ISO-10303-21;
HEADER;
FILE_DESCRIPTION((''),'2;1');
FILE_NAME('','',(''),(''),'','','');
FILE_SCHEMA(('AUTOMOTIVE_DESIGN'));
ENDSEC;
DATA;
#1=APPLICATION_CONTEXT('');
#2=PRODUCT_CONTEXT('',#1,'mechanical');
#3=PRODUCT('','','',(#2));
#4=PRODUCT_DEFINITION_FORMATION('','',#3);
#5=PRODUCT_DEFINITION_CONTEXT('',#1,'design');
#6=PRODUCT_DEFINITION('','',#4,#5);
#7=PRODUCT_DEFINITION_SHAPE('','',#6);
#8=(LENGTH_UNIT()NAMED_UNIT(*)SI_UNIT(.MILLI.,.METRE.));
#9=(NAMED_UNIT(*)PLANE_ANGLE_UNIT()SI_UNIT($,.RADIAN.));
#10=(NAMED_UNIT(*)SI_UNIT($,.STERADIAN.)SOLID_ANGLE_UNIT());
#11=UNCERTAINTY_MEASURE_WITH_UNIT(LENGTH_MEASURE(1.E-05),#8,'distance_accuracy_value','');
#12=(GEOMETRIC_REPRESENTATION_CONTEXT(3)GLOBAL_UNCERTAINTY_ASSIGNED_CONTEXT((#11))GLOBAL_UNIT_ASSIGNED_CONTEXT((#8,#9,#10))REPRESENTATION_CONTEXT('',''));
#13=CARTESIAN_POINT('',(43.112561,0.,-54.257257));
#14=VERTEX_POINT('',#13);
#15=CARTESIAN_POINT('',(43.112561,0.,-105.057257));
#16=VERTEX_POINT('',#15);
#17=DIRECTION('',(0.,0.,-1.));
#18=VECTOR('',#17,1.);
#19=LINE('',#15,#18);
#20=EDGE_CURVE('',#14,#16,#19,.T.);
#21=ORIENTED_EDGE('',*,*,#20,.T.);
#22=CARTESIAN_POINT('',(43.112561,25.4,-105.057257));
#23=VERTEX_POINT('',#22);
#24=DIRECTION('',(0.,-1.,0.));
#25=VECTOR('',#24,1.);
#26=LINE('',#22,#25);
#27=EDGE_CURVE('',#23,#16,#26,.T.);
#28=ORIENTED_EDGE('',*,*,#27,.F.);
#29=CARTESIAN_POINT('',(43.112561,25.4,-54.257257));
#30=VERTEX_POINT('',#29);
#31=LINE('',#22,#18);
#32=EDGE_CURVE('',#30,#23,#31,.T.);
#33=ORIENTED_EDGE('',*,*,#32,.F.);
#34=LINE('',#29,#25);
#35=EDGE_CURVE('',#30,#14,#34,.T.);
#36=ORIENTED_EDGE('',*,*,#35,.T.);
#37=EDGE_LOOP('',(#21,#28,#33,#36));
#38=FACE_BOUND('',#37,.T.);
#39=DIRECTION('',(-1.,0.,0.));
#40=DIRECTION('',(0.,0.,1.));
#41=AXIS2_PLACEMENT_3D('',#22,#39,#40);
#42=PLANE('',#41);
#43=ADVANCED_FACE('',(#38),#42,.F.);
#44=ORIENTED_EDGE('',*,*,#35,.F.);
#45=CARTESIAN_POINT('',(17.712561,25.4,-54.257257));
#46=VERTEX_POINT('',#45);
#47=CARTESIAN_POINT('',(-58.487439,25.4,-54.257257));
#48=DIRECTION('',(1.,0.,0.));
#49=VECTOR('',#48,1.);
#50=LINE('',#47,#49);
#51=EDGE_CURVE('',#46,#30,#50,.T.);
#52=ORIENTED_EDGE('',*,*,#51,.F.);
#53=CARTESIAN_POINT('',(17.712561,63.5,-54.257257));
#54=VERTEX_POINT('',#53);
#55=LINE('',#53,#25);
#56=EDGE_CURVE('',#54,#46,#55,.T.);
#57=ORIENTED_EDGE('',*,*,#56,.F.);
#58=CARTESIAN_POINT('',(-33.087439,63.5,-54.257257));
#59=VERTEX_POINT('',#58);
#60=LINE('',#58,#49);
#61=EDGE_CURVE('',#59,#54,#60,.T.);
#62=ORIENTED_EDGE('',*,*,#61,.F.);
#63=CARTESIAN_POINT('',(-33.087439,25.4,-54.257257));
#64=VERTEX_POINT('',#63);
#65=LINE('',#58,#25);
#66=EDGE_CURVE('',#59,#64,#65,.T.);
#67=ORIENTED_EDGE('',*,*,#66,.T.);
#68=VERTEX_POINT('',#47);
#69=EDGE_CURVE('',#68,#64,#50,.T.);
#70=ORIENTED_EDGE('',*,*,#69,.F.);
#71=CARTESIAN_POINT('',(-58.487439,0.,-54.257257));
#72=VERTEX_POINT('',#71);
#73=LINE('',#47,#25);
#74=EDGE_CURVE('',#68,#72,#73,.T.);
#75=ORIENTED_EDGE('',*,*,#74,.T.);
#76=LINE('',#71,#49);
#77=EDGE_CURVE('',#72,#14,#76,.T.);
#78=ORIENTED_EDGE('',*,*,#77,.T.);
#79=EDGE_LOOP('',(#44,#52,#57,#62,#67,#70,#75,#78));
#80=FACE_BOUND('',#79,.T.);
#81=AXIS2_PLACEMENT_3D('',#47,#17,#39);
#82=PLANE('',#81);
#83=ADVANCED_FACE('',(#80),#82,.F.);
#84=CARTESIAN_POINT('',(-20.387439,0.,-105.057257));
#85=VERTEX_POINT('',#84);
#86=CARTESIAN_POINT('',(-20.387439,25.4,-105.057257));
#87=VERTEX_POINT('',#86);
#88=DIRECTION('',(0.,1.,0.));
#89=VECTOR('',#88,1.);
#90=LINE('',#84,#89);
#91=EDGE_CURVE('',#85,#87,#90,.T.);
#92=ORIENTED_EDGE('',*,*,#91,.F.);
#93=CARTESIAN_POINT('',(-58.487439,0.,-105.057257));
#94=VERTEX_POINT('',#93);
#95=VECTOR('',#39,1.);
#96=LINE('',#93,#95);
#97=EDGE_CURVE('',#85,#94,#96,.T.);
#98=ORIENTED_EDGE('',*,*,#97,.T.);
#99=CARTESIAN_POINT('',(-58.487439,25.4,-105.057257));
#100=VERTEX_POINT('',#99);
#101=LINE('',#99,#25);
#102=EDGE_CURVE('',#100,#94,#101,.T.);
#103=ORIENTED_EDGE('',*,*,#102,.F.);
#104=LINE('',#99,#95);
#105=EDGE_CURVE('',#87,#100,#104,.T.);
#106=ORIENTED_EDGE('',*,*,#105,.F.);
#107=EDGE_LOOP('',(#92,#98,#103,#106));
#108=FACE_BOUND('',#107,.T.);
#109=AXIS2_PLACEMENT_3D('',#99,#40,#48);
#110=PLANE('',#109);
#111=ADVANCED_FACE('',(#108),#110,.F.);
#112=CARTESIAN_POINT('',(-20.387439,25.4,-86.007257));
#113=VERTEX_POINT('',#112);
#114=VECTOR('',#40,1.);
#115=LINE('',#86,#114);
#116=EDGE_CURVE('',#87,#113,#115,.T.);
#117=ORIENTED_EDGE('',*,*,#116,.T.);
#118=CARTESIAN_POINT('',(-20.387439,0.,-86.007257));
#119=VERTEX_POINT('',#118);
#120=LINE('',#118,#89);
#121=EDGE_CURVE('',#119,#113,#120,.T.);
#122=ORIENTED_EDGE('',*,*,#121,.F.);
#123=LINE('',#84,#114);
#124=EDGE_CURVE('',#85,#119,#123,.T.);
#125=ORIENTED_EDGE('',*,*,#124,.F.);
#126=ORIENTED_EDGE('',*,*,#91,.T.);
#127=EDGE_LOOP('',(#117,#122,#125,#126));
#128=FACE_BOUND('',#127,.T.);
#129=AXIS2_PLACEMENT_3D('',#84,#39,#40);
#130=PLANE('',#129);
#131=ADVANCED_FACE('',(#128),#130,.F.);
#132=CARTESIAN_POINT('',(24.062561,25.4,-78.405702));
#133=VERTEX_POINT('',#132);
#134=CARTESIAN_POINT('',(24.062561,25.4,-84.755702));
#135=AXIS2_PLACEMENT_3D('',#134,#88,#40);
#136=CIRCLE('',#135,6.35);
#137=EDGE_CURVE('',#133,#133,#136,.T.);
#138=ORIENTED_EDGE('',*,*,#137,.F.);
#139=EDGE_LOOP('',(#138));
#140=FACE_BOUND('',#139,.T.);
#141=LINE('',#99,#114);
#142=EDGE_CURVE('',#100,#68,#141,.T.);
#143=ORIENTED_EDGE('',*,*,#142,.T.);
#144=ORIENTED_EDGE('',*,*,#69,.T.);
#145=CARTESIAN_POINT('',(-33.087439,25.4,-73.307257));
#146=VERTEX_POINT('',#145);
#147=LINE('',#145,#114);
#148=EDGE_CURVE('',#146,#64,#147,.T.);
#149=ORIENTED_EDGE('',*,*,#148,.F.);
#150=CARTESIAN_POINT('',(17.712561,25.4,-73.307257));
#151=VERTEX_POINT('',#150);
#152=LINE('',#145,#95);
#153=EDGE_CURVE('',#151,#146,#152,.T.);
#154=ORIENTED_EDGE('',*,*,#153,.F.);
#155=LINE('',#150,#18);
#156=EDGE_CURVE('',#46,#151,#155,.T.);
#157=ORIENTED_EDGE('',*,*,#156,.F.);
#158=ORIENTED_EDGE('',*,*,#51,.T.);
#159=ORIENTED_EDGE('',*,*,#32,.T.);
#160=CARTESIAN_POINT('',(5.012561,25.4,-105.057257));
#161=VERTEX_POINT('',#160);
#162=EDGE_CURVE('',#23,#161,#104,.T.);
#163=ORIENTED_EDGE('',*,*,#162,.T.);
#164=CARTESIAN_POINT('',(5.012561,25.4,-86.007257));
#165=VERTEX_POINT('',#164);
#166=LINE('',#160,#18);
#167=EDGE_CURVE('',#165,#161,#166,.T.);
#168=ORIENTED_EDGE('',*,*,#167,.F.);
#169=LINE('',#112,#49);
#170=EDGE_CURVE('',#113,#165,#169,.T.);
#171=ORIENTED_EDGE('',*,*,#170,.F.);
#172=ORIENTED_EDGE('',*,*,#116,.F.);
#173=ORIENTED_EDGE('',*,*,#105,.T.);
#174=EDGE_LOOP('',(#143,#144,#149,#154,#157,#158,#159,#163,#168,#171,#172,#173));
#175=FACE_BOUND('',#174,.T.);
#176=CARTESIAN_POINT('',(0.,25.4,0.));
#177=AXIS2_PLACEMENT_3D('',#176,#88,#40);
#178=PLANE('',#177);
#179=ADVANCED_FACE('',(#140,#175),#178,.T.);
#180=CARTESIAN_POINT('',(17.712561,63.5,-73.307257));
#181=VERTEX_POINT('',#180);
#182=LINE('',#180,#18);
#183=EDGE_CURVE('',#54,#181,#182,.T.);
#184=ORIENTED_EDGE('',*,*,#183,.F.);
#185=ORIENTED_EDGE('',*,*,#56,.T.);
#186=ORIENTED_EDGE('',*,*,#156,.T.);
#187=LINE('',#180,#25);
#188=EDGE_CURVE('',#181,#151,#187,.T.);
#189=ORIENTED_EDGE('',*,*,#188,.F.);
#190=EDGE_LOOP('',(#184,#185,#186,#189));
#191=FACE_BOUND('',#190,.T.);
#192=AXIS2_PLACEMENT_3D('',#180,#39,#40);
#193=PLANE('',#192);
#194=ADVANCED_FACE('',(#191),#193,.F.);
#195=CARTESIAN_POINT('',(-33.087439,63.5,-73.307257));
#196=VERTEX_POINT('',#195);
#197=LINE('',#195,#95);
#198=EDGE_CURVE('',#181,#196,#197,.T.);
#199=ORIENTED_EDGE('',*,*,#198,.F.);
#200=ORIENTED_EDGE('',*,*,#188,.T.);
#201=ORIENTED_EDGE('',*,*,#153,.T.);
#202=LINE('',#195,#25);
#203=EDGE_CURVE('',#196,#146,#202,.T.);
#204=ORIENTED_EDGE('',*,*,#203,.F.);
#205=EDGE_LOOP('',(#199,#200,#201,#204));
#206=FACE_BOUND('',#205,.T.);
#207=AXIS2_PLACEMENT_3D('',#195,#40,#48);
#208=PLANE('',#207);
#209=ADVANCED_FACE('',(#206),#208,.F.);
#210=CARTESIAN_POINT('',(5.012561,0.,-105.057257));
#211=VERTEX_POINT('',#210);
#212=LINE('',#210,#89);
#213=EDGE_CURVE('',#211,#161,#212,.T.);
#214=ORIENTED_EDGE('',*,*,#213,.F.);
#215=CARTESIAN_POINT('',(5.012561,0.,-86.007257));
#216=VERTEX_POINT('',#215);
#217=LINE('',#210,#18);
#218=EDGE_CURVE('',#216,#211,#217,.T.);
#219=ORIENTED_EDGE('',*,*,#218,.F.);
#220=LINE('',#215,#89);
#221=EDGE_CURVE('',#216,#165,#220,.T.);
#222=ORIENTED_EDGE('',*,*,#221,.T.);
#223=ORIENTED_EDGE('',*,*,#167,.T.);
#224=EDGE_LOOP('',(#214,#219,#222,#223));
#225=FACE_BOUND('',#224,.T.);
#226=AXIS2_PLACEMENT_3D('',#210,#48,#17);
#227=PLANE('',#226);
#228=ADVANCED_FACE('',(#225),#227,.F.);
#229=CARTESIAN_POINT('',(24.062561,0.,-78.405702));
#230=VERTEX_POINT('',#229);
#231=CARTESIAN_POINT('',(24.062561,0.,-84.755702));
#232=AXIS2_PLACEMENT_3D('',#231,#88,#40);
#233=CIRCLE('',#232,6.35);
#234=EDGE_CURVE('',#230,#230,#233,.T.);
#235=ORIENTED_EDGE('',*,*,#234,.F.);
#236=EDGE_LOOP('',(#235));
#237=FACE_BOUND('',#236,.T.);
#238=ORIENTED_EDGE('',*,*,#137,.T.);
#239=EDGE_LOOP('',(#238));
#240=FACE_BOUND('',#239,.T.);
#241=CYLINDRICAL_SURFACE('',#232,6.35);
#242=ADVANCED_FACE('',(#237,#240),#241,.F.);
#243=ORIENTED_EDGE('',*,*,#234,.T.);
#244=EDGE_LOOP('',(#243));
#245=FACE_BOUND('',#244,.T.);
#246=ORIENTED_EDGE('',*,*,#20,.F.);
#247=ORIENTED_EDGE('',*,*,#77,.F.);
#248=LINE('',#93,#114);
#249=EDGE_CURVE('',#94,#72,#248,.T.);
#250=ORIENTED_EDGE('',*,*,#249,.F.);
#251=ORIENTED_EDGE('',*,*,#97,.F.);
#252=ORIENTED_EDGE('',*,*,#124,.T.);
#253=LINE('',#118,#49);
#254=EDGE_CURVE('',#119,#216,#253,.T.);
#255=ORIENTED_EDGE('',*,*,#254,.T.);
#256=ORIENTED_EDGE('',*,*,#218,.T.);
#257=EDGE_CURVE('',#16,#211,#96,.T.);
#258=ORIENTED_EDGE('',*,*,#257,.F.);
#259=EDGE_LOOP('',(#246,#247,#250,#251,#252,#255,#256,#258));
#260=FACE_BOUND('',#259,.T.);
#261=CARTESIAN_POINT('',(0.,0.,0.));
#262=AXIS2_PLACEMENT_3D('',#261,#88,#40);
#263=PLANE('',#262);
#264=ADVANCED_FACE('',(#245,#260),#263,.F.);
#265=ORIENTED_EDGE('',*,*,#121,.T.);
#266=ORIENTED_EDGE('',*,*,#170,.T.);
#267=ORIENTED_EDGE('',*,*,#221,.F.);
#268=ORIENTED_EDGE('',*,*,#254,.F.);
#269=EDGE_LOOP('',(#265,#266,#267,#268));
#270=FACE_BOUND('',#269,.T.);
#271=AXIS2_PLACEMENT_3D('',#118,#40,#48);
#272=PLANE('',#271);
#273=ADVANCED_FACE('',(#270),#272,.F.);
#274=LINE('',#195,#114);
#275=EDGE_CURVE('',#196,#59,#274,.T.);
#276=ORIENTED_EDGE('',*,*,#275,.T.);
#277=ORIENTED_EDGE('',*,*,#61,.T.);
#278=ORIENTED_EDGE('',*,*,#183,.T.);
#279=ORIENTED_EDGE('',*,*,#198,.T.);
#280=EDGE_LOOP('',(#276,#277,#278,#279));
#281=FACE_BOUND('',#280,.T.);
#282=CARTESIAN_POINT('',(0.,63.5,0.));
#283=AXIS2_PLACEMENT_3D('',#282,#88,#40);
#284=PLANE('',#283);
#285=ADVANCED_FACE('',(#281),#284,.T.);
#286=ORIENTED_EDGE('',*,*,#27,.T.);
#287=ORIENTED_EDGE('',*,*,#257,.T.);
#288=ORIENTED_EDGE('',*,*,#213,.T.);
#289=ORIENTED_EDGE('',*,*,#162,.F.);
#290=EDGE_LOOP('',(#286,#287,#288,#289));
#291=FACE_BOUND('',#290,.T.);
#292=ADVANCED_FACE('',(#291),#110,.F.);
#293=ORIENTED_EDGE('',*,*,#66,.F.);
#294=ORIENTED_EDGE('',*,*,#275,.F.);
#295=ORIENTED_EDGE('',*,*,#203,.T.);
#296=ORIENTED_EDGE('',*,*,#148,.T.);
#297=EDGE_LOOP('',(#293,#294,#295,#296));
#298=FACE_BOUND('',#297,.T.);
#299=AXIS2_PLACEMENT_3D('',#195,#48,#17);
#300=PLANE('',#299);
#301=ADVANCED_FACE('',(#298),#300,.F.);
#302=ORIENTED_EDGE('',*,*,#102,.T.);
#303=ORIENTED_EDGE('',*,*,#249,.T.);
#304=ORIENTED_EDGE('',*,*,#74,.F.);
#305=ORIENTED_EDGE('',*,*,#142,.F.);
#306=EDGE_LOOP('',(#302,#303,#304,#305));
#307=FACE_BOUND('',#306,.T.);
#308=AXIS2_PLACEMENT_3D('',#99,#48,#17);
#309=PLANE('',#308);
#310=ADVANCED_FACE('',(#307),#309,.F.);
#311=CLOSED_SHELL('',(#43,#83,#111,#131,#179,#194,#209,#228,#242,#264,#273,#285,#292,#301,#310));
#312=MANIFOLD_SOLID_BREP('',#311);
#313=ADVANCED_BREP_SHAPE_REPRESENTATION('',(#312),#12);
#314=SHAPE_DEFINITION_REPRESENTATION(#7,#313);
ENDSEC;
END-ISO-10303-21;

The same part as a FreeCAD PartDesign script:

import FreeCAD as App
import Part
import Sketcher

V = App.Vector
Q = App.Units.Quantity

doc = App.newDocument("Part")
body = doc.addObject("PartDesign::Body", "Body")

sketch1 = body.newObject("Sketcher::SketchObject", "Sketch")
sketch1.AttachmentSupport = (doc.getObject("XZ_Plane"), [""])
sketch1.MapMode = "FlatFace"
sketch1.addGeometry([
    Part.LineSegment(V(-58, -105, 0), V(-58, -54, 0)),
    Part.LineSegment(V(-58, -54, 0), V(43, -54, 0)),
    Part.LineSegment(V(43, -54, 0), V(43, -105, 0)),
    Part.LineSegment(V(43, -105, 0), V(-58, -105, 0)),
], False)
sketch1.addConstraint([
    Sketcher.Constraint("Coincident", 0, 2, 1, 1),
    Sketcher.Constraint("Coincident", 1, 2, 2, 1),
    Sketcher.Constraint("Coincident", 2, 2, 3, 1),
    Sketcher.Constraint("Coincident", 3, 2, 0, 1),
    Sketcher.Constraint("Vertical", 0),
    Sketcher.Constraint("Horizontal", 1),
    Sketcher.Constraint("Vertical", 2),
    Sketcher.Constraint("Horizontal", 3),
    Sketcher.Constraint("DistanceX", 1, 1, 1, 2, Q("4 in")),
    Sketcher.Constraint("DistanceY", 0, 1, 0, 2, Q("2 in")),
    Sketcher.Constraint("DistanceX", 0, 2, -1, 1, 58.487439),
    Sketcher.Constraint("DistanceY", 0, 2, -1, 1, 54.257257),
])
pad1 = body.newObject("PartDesign::Pad", "Pad")
pad1.Profile = sketch1
pad1.Length = Q("1 in")
pad1.Reversed = True

sketch2 = body.newObject("Sketcher::SketchObject", "Sketch001")
sketch2.AttachmentSupport = (doc.getObject("XZ_Plane"), [""])
sketch2.MapMode = "FlatFace"
sketch2.AttachmentOffset = App.Placement(V(0, 0, -1 * 25.4), App.Rotation())
sketch2.addGeometry([
    Part.LineSegment(V(-20, -105, 0), V(-20, -86, 0)),
    Part.LineSegment(V(-20, -86, 0), V(5, -86, 0)),
    Part.LineSegment(V(5, -86, 0), V(5, -105, 0)),
    Part.LineSegment(V(5, -105, 0), V(-20, -105, 0)),
], False)
sketch2.addConstraint([
    Sketcher.Constraint("Coincident", 0, 2, 1, 1),
    Sketcher.Constraint("Coincident", 1, 2, 2, 1),
    Sketcher.Constraint("Coincident", 2, 2, 3, 1),
    Sketcher.Constraint("Coincident", 3, 2, 0, 1),
    Sketcher.Constraint("Vertical", 0),
    Sketcher.Constraint("Horizontal", 1),
    Sketcher.Constraint("Vertical", 2),
    Sketcher.Constraint("Horizontal", 3),
    Sketcher.Constraint("DistanceX", 1, 1, 1, 2, Q("1 in")),
    Sketcher.Constraint("DistanceY", 0, 1, 0, 2, Q("0.75 in")),
    Sketcher.Constraint("DistanceX", 0, 2, -1, 1, 20.387439),
    Sketcher.Constraint("DistanceY", 0, 2, -1, 1, 86.007257),
])
pocket1 = body.newObject("PartDesign::Pocket", "Pocket")
pocket1.Profile = sketch2
pocket1.Type = "ThroughAll"
pocket1.Reversed = True

sketch3 = body.newObject("Sketcher::SketchObject", "Sketch002")
sketch3.AttachmentSupport = (doc.getObject("XZ_Plane"), [""])
sketch3.MapMode = "FlatFace"
sketch3.AttachmentOffset = App.Placement(V(0, 0, -1 * 25.4), App.Rotation())
sketch3.addGeometry([
    Part.LineSegment(V(-33, -73, 0), V(-33, -54, 0)),
    Part.LineSegment(V(-33, -54, 0), V(18, -54, 0)),
    Part.LineSegment(V(18, -54, 0), V(18, -73, 0)),
    Part.LineSegment(V(18, -73, 0), V(-33, -73, 0)),
], False)
sketch3.addConstraint([
    Sketcher.Constraint("Coincident", 0, 2, 1, 1),
    Sketcher.Constraint("Coincident", 1, 2, 2, 1),
    Sketcher.Constraint("Coincident", 2, 2, 3, 1),
    Sketcher.Constraint("Coincident", 3, 2, 0, 1),
    Sketcher.Constraint("Vertical", 0),
    Sketcher.Constraint("Horizontal", 1),
    Sketcher.Constraint("Vertical", 2),
    Sketcher.Constraint("Horizontal", 3),
    Sketcher.Constraint("DistanceX", 1, 1, 1, 2, Q("2 in")),
    Sketcher.Constraint("DistanceY", 0, 1, 0, 2, Q("0.75 in")),
    Sketcher.Constraint("DistanceX", 0, 2, -1, 1, 33.087439),
    Sketcher.Constraint("DistanceY", 0, 2, -1, 1, 54.257257),
])
pad2 = body.newObject("PartDesign::Pad", "Pad001")
pad2.Profile = sketch3
pad2.Length = Q("1.5 in")
pad2.Reversed = True

sketch4 = body.newObject("Sketcher::SketchObject", "Sketch003")
sketch4.AttachmentSupport = (doc.getObject("XZ_Plane"), [""])
sketch4.MapMode = "FlatFace"
sketch4.AttachmentOffset = App.Placement(V(0, 0, -1 * 25.4), App.Rotation())
sketch4.addGeometry(Part.Circle(V(24, -85, 0), V(0, 0, 1), 6), False)
sketch4.addConstraint([
    Sketcher.Constraint("Diameter", 0, Q("0.5 in")),
    Sketcher.Constraint("DistanceX", -1, 1, 0, 3, 24.062561),
    Sketcher.Constraint("DistanceY", 0, 3, -1, 1, 84.755702),
])
pocket2 = body.newObject("PartDesign::Pocket", "Pocket001")
pocket2.Profile = sketch4
pocket2.Type = "ThroughAll"
pocket2.Reversed = True

doc.recompute()
